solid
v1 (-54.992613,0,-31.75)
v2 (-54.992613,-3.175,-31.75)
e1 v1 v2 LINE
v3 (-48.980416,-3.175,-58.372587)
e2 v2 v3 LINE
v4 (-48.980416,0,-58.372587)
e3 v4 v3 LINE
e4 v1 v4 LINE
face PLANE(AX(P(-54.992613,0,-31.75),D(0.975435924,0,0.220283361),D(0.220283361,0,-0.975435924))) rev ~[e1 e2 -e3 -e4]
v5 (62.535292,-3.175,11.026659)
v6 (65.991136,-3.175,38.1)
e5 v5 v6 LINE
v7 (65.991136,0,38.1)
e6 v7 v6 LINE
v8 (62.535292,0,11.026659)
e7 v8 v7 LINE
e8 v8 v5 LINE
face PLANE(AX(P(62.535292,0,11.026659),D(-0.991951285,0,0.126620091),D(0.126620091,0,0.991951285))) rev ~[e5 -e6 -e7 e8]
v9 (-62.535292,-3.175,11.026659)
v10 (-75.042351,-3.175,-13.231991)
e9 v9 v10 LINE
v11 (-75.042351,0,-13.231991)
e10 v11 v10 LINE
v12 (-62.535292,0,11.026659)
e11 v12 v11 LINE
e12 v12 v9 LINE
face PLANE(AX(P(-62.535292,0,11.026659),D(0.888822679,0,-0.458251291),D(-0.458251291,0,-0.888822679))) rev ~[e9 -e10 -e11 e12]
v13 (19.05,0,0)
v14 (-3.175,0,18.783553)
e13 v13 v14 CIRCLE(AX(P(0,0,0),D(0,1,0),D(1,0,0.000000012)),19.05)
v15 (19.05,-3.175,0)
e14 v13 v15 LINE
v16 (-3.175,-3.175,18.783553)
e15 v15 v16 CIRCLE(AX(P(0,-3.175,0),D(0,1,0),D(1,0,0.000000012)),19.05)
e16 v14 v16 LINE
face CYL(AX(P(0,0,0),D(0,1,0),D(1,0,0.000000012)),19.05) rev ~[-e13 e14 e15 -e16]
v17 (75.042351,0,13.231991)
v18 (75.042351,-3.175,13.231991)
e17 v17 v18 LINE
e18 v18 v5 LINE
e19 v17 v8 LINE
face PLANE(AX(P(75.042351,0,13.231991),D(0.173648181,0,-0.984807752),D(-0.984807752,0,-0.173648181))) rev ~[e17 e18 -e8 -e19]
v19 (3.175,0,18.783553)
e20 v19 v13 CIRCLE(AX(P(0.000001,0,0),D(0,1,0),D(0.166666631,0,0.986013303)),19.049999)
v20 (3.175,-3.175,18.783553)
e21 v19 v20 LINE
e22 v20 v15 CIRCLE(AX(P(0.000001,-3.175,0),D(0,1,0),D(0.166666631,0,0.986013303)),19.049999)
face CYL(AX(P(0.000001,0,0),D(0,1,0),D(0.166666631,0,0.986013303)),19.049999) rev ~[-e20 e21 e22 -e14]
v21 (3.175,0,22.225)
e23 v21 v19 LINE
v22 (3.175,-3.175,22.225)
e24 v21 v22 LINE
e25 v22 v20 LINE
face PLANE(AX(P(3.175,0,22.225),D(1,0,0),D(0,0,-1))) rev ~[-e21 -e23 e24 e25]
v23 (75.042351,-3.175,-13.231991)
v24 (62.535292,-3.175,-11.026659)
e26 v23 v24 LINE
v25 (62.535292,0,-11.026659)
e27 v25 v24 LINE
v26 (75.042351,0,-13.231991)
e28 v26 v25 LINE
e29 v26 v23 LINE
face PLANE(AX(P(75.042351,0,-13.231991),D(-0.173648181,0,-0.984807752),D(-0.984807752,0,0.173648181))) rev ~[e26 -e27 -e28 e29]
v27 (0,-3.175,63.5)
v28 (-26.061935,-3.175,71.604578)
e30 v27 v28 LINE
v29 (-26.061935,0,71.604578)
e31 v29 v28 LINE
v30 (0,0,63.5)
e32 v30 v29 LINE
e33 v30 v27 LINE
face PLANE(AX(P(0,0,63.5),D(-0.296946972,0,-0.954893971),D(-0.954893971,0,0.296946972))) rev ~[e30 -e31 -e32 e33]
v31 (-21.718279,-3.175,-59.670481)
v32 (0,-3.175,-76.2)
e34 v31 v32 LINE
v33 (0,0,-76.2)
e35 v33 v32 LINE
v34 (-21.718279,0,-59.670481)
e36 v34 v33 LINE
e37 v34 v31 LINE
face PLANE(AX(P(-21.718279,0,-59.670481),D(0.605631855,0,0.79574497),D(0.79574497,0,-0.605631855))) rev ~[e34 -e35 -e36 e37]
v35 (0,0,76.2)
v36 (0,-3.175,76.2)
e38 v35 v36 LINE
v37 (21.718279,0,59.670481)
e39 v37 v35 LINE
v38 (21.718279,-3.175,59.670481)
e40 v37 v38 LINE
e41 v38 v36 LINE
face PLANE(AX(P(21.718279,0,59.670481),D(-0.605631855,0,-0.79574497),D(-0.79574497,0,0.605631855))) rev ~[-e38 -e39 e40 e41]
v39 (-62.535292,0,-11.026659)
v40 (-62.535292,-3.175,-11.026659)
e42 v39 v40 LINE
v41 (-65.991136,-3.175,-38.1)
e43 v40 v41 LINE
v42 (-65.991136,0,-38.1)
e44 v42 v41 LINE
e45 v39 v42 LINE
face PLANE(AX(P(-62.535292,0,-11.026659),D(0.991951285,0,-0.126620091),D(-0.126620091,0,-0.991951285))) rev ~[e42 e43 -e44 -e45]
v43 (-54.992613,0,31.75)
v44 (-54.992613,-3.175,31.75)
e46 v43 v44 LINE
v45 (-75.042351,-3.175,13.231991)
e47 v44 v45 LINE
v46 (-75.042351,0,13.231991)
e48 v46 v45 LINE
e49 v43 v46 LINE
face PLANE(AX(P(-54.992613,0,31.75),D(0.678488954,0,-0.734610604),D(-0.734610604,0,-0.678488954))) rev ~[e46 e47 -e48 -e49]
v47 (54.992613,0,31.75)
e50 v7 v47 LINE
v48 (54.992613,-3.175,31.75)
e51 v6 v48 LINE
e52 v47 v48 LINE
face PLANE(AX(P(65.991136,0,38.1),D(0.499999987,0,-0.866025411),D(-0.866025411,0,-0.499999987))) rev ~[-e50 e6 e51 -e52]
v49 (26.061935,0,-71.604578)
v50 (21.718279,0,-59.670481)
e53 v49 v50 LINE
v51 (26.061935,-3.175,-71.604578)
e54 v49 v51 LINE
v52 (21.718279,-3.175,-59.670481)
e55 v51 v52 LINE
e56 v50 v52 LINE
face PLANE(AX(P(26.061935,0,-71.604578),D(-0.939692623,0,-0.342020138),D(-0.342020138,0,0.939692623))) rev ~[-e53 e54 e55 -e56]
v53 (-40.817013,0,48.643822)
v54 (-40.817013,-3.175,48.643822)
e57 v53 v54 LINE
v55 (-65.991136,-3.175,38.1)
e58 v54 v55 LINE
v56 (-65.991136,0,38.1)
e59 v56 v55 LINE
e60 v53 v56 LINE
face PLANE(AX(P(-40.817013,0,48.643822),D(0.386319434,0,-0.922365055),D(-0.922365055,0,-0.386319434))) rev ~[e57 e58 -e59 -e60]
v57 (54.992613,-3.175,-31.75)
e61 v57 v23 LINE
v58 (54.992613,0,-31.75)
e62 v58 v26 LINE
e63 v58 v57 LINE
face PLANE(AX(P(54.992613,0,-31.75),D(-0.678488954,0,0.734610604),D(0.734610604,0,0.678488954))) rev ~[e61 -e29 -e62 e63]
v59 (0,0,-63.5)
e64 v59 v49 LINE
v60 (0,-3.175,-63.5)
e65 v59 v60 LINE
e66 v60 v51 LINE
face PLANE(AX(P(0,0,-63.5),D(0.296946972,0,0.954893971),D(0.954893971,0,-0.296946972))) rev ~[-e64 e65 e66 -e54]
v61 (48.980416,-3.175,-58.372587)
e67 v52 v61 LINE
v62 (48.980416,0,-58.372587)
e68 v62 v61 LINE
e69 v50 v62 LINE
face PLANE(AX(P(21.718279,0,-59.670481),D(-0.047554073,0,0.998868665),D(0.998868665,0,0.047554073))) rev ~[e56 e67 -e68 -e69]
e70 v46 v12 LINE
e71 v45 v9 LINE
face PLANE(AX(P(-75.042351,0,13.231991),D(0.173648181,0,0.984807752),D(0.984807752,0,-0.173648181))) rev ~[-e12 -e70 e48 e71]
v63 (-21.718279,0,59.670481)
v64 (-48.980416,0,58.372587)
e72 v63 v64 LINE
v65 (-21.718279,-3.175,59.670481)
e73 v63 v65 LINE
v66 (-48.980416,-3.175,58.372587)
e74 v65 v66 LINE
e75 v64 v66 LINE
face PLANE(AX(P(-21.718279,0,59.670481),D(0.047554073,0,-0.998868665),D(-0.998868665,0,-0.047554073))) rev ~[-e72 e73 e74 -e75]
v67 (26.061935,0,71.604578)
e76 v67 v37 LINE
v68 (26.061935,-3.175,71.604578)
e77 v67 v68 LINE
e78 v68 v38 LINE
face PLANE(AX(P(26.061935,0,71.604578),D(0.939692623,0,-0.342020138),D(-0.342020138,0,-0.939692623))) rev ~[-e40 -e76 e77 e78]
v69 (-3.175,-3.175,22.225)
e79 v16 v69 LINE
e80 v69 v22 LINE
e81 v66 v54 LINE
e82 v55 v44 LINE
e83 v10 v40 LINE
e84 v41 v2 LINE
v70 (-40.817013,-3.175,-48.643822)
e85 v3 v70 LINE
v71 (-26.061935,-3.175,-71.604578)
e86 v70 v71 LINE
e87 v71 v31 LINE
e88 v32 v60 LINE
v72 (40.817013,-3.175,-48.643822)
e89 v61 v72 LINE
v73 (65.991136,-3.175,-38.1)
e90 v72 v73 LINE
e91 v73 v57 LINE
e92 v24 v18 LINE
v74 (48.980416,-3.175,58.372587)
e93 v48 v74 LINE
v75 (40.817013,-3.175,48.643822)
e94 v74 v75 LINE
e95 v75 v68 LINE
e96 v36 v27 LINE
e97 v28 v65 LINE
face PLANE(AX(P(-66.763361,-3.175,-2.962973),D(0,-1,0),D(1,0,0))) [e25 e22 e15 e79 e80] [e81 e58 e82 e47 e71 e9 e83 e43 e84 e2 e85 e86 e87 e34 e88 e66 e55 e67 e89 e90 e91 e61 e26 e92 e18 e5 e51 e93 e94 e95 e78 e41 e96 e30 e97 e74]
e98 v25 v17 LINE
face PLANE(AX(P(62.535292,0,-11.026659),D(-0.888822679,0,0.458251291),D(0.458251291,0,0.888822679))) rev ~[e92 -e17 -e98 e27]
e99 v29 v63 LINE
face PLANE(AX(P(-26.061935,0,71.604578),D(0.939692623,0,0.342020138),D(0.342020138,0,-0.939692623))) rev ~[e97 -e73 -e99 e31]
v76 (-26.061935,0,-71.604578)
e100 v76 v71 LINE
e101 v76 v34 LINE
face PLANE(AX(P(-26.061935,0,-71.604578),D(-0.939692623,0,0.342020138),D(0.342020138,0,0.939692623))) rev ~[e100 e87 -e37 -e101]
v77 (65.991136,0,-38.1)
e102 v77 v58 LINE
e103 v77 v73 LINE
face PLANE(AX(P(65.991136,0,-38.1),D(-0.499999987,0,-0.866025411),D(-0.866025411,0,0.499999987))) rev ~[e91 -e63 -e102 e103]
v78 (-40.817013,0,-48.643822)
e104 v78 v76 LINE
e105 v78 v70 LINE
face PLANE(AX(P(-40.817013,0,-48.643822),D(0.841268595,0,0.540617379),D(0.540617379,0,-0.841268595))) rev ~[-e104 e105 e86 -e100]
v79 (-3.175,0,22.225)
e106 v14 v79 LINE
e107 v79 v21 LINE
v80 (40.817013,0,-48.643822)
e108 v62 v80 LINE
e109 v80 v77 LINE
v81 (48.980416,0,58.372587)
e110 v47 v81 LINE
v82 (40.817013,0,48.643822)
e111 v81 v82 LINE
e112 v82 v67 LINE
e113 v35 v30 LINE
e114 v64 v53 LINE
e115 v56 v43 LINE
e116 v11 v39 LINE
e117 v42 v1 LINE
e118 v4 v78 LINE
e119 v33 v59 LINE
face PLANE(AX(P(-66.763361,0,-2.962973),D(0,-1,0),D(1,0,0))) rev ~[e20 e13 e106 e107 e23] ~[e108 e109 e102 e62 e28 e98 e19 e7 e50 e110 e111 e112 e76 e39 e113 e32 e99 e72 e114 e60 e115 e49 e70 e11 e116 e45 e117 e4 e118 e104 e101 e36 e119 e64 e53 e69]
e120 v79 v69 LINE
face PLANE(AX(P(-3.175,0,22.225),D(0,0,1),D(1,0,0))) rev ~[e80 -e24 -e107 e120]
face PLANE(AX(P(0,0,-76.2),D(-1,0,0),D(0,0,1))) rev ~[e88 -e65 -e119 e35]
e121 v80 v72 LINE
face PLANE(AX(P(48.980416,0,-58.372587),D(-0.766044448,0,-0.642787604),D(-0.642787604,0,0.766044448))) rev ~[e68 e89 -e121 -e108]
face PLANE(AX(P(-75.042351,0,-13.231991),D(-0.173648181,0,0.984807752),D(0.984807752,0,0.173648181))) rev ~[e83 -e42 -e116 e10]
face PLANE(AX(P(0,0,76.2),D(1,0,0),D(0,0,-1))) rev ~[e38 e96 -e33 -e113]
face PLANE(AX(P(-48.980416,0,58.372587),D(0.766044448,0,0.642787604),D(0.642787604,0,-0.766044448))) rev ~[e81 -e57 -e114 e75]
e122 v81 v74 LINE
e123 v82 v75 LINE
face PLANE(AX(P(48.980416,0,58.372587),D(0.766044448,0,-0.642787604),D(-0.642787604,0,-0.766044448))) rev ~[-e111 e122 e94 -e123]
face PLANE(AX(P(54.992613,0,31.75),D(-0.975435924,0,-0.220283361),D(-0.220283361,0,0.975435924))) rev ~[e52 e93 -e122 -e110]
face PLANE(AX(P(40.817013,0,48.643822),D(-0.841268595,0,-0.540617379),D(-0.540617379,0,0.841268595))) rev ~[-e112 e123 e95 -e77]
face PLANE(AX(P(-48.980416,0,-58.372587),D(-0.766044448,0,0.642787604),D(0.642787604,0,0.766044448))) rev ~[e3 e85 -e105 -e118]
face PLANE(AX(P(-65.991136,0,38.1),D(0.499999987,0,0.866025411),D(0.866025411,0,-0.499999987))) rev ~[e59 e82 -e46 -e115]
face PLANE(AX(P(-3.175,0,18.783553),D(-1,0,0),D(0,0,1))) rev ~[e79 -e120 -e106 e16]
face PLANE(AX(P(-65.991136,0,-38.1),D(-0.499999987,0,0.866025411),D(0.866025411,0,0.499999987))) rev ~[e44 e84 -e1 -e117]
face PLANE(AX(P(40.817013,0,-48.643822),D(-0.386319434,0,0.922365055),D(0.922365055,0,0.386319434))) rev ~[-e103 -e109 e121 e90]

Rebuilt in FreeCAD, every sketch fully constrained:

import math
import FreeCAD as App
import Part
import Sketcher
from FreeCAD import Vector
Q = App.Units.Quantity


def add_polygon(sketch, points):
    """Adds a closed chain of lines whose ends are joined by coincident constraints."""
    first, n = sketch.GeometryCount, len(points)
    for a, b in zip(points, points[1:] + points[:1]):
        sketch.addGeometry(Part.LineSegment(App.Vector(*a, 0), App.Vector(*b, 0)), False)
    for i in range(n):
        sketch.addConstraint(Sketcher.Constraint("Coincident", first + i, 2, first + (i + 1) % n, 1))

doc = App.newDocument("Part")
body = doc.addObject("PartDesign::Body", "Body")

# Sketch on XZ plane
sketch1 = body.newObject("Sketcher::SketchObject", "Sketch")
sketch1.AttachmentSupport = (doc.getObject("XZ_Plane"), [""])
sketch1.MapMode = "FlatFace"
add_polygon(sketch1, [(-62.535292, 11.026659), (-75.042351, -13.231991), (-62.535292, -11.026659), (-65.991136, -38.1), (-54.992613, -31.75), (-48.980416, -58.372587), (-40.817013, -48.643822), (-26.061935, -71.604578), (-21.718279, -59.670481), (0, -76.2), (0, -63.5), (26.061935, -71.604578), (21.718279, -59.670481), (48.980416, -58.372587), (40.817013, -48.643822), (65.991136, -38.1), (54.992613, -31.75), (75.042351, -13.231991), (62.535292, -11.026659), (75.042351, 13.231991), (62.535292, 11.026659), (65.991136, 38.1), (54.992613, 31.75), (48.980416, 58.372587), (40.817013, 48.643822), (26.061935, 71.604578), (21.718279, 59.670481), (0, 76.2), (0, 63.5), (-26.061935, 71.604578), (-21.718279, 59.670481), (-48.980416, 58.372587), (-40.817013, 48.643822), (-65.991136, 38.1), (-54.992613, 31.75), (-75.042351, 13.231991)])  # lines 0-35
sketch1.addGeometry(Part.LineSegment(Vector(3.175, 22.225, 0), Vector(3.175, 18.783553, 0)), False)  # 36
sketch1.addGeometry(Part.ArcOfCircle(Part.Circle(Vector(0.000001, 0, 0), Vector(0, 0, 1), 19.049999), math.radians(-0.000001), math.radians(80.405934)), False)  # 37
sketch1.addGeometry(Part.ArcOfCircle(Part.Circle(Vector(0, 0, 0), Vector(0, 0, 1), 19.05), math.radians(99.594068), math.radians(360.000001)), False)  # 38
sketch1.addGeometry(Part.LineSegment(Vector(-3.175, 18.783553, 0), Vector(-3.175, 22.225, 0)), False)  # 39
sketch1.addGeometry(Part.LineSegment(Vector(-3.175, 22.225, 0), Vector(3.175, 22.225, 0)), False)  # 40
sketch1.addConstraint([
    Sketcher.Constraint("Coincident", 36, 2, 37, 2),
    Sketcher.Constraint("Tangent", 37, 1, 38, 2),
    Sketcher.Constraint("Coincident", 38, 1, 39, 1),
    Sketcher.Constraint("Coincident", 39, 2, 40, 1),
    Sketcher.Constraint("Coincident", 40, 2, 36, 1),
    Sketcher.Constraint("Vertical", 9),
    Sketcher.Constraint("Vertical", 27),
    Sketcher.Constraint("Vertical", 36),
    Sketcher.Constraint("Vertical", 39),
    Sketcher.Constraint("Horizontal", 40),
    Sketcher.Constraint("Coincident", 37, 3, -1, 1),
    Sketcher.Constraint("Equal", 37, 38),
    Sketcher.Constraint("Symmetric", 0, 2, 18, 2, -1, 1),
    Sketcher.Constraint("Symmetric", 1, 2, 19, 2, -1, 1),
    Sketcher.Constraint("Symmetric", 2, 2, 20, 2, -1, 1),
    Sketcher.Constraint("Symmetric", 3, 2, 21, 2, -1, 1),
    Sketcher.Constraint("Symmetric", 4, 2, 22, 2, -1, 1),
    Sketcher.Constraint("Symmetric", 5, 2, 23, 2, -1, 1),
    Sketcher.Constraint("Symmetric", 6, 2, 24, 2, -1, 1),
    Sketcher.Constraint("Symmetric", 7, 2, 25, 2, -1, 1),
    Sketcher.Constraint("Symmetric", 8, 2, 26, 2, -1, 1),
    Sketcher.Constraint("Symmetric", 10, 2, 28, 2, -1, 1),
    Sketcher.Constraint("Symmetric", 11, 2, 29, 2, -1, 1),
    Sketcher.Constraint("Symmetric", 12, 2, 30, 2, -1, 1),
    Sketcher.Constraint("Symmetric", 13, 2, 31, 2, -1, 1),
    Sketcher.Constraint("Symmetric", 14, 2, 32, 2, -1, 1),
    Sketcher.Constraint("Symmetric", 15, 2, 33, 2, -1, 1),
    Sketcher.Constraint("Symmetric", 16, 2, 34, 2, -1, 1),
    Sketcher.Constraint("Symmetric", 17, 2, 35, 2, -1, 1),
    Sketcher.Constraint("Symmetric", 6, 2, 10, 2, -2),
    Sketcher.Constraint("Symmetric", 7, 2, 11, 2, -2),
    Sketcher.Constraint("Symmetric", 4, 2, 12, 2, -2),
    Sketcher.Constraint("Symmetric", 5, 2, 13, 2, -2),
    Sketcher.Constraint("Symmetric", 2, 2, 14, 2, -2),
    Sketcher.Constraint("Symmetric", 3, 2, 15, 2, -2),
    Sketcher.Constraint("Symmetric", 0, 2, 16, 2, -2),
    Sketcher.Constraint("Symmetric", 1, 2, 17, 2, -2),
    Sketcher.Constraint("Symmetric", 9, 2, 27, 2, -1),
    Sketcher.Constraint("PointOnObject", 37, 1, -1),
    Sketcher.Constraint("Horizontal", 36, 2, 38, 1),
    Sketcher.Constraint("Equal", 0, 2),
    Sketcher.Constraint("Equal", 1, 3),
    Sketcher.Constraint("Equal", 2, 4),
    Sketcher.Constraint("Equal", 3, 5),
    Sketcher.Constraint("Equal", 4, 6),
    Sketcher.Constraint("Equal", 5, 7),
    Sketcher.Constraint("Equal", 6, 8),
    Sketcher.Constraint("Equal", 8, 10),
    Sketcher.Constraint("Equal", 10, 12),
    Sketcher.Constraint("Equal", 12, 14),
    Sketcher.Constraint("Equal", 14, 16),
    Sketcher.Constraint("Radius", 37, Q("0.75 in")),
    Sketcher.Constraint("DistanceY", 9, 1, 9, 2, Q("0.5 in")),
    Sketcher.Constraint("DistanceY", 8, 2, -1, 1, Q("3 in")),
    Sketcher.Constraint("Angle", 1, Q("10 deg")),
    Sketcher.Constraint("Angle", 3, Q("29.999999 deg")),
    Sketcher.Constraint("Angle", 5, Q("50 deg")),
    Sketcher.Constraint("Angle", 7, Q("70 deg")),
    Sketcher.Constraint("DistanceY", 9, 2, 14, 2, Q("1 in")),
    Sketcher.Constraint("DistanceX", 40, 1, 40, 2, Q("0.25 in")),
    Sketcher.Constraint("DistanceY", -1, 1, 39, 2, Q("0.875 in")),
])
pad1 = body.newObject("PartDesign::Pad", "Pad")
pad1.Profile = sketch1
pad1.Length = Q("0.125 in")

doc.recompute()
